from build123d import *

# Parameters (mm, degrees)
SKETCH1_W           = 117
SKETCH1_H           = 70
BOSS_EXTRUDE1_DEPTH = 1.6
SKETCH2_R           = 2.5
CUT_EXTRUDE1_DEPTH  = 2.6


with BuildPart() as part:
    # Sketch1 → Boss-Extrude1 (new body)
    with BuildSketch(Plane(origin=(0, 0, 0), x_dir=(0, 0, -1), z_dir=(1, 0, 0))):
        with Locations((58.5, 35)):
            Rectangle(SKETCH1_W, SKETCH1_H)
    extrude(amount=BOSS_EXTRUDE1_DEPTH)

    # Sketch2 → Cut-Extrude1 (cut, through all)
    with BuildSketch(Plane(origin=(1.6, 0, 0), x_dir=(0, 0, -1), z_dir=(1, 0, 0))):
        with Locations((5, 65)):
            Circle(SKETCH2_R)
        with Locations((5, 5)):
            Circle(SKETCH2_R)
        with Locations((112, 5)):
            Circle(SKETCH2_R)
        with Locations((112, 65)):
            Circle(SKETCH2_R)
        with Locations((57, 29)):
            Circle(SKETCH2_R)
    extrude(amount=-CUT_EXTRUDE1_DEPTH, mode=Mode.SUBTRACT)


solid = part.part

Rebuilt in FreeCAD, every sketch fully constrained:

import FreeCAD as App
import Part
import Sketcher


def add_polygon(sketch, points):
    """Adds a closed chain of lines whose ends are joined by coincident constraints."""
    first, n = sketch.GeometryCount, len(points)
    for a, b in zip(points, points[1:] + points[:1]):
        sketch.addGeometry(Part.LineSegment(App.Vector(*a, 0), App.Vector(*b, 0)), False)
    for i in range(n):
        sketch.addConstraint(Sketcher.Constraint("Coincident", first + i, 2, first + (i + 1) % n, 1))

doc = App.newDocument("Part")
body = doc.addObject("PartDesign::Body", "Body")

sketch1 = body.newObject("Sketcher::SketchObject", "Sketch")
sketch1.AttachmentSupport = (doc.getObject("YZ_Plane"), [""])
sketch1.MapMode = "FlatFace"
add_polygon(sketch1, [(70, 0), (0, 0), (0, -117), (70, -117)])
sketch1.addConstraint(Sketcher.Constraint("Horizontal", 0))
sketch1.addConstraint(Sketcher.Constraint("Vertical", 1))
sketch1.addConstraint(Sketcher.Constraint("Horizontal", 2))
sketch1.addConstraint(Sketcher.Constraint("Vertical", 3))
sketch1.addConstraint(Sketcher.Constraint("Coincident", 0, 2, -1, 1))
sketch1.addConstraint(Sketcher.Constraint("DistanceX", 0, 2, 0, 1, 70.0))
sketch1.addConstraint(Sketcher.Constraint("DistanceY", 1, 2, 1, 1, 117.0))
pad1 = body.newObject("PartDesign::Pad", "Pad")
pad1.Profile = sketch1
pad1.Length = 1.6

sketch2 = body.newObject("Sketcher::SketchObject", "Sketch001")
sketch2.AttachmentSupport = (doc.getObject("YZ_Plane"), [""])
sketch2.MapMode = "FlatFace"
sketch2.AttachmentOffset = App.Placement(App.Vector(0, 0, 1.6), App.Rotation())
sketch2.addGeometry(Part.Circle(App.Vector(65, -5, 0), App.Vector(0, 0, 1), 2.5), False)
sketch2.addGeometry(Part.Circle(App.Vector(5, -5, 0), App.Vector(0, 0, 1), 2.5), False)
sketch2.addGeometry(Part.Circle(App.Vector(5, -112, 0), App.Vector(0, 0, 1), 2.5), False)
sketch2.addGeometry(Part.Circle(App.Vector(65, -112, 0), App.Vector(0, 0, 1), 2.5), False)
sketch2.addGeometry(Part.Circle(App.Vector(29, -57, 0), App.Vector(0, 0, 1), 2.5), False)
sketch2.addConstraint(Sketcher.Constraint("Equal", 0, 1))
sketch2.addConstraint(Sketcher.Constraint("Equal", 1, 2))
sketch2.addConstraint(Sketcher.Constraint("Equal", 2, 3))
sketch2.addConstraint(Sketcher.Constraint("Equal", 3, 4))
sketch2.addConstraint(Sketcher.Constraint("Horizontal", 0, 3, 1, 3))
sketch2.addConstraint(Sketcher.Constraint("Horizontal", 2, 3, 3, 3))
sketch2.addConstraint(Sketcher.Constraint("Vertical", 1, 3, 2, 3))
sketch2.addConstraint(Sketcher.Constraint("Vertical", 0, 3, 3, 3))
sketch2.addConstraint(Sketcher.Constraint("Diameter", 0, 5.0))
sketch2.addConstraint(Sketcher.Constraint("DistanceX", -1, 1, 0, 3, 65.0))
sketch2.addConstraint(Sketcher.Constraint("DistanceY", 0, 3, -1, 1, 5.0))
sketch2.addConstraint(Sketcher.Constraint("DistanceX", -1, 1, 1, 3, 5.0))
sketch2.addConstraint(Sketcher.Constraint("DistanceY", 2, 3, -1, 1, 112.0))
sketch2.addConstraint(Sketcher.Constraint("DistanceX", -1, 1, 4, 3, 29.0))
sketch2.addConstraint(Sketcher.Constraint("DistanceY", 4, 3, -1, 1, 57.0))
pocket1 = body.newObject("PartDesign::Pocket", "Pocket")
pocket1.Profile = sketch2
pocket1.Type = "ThroughAll"

doc.recompute()
